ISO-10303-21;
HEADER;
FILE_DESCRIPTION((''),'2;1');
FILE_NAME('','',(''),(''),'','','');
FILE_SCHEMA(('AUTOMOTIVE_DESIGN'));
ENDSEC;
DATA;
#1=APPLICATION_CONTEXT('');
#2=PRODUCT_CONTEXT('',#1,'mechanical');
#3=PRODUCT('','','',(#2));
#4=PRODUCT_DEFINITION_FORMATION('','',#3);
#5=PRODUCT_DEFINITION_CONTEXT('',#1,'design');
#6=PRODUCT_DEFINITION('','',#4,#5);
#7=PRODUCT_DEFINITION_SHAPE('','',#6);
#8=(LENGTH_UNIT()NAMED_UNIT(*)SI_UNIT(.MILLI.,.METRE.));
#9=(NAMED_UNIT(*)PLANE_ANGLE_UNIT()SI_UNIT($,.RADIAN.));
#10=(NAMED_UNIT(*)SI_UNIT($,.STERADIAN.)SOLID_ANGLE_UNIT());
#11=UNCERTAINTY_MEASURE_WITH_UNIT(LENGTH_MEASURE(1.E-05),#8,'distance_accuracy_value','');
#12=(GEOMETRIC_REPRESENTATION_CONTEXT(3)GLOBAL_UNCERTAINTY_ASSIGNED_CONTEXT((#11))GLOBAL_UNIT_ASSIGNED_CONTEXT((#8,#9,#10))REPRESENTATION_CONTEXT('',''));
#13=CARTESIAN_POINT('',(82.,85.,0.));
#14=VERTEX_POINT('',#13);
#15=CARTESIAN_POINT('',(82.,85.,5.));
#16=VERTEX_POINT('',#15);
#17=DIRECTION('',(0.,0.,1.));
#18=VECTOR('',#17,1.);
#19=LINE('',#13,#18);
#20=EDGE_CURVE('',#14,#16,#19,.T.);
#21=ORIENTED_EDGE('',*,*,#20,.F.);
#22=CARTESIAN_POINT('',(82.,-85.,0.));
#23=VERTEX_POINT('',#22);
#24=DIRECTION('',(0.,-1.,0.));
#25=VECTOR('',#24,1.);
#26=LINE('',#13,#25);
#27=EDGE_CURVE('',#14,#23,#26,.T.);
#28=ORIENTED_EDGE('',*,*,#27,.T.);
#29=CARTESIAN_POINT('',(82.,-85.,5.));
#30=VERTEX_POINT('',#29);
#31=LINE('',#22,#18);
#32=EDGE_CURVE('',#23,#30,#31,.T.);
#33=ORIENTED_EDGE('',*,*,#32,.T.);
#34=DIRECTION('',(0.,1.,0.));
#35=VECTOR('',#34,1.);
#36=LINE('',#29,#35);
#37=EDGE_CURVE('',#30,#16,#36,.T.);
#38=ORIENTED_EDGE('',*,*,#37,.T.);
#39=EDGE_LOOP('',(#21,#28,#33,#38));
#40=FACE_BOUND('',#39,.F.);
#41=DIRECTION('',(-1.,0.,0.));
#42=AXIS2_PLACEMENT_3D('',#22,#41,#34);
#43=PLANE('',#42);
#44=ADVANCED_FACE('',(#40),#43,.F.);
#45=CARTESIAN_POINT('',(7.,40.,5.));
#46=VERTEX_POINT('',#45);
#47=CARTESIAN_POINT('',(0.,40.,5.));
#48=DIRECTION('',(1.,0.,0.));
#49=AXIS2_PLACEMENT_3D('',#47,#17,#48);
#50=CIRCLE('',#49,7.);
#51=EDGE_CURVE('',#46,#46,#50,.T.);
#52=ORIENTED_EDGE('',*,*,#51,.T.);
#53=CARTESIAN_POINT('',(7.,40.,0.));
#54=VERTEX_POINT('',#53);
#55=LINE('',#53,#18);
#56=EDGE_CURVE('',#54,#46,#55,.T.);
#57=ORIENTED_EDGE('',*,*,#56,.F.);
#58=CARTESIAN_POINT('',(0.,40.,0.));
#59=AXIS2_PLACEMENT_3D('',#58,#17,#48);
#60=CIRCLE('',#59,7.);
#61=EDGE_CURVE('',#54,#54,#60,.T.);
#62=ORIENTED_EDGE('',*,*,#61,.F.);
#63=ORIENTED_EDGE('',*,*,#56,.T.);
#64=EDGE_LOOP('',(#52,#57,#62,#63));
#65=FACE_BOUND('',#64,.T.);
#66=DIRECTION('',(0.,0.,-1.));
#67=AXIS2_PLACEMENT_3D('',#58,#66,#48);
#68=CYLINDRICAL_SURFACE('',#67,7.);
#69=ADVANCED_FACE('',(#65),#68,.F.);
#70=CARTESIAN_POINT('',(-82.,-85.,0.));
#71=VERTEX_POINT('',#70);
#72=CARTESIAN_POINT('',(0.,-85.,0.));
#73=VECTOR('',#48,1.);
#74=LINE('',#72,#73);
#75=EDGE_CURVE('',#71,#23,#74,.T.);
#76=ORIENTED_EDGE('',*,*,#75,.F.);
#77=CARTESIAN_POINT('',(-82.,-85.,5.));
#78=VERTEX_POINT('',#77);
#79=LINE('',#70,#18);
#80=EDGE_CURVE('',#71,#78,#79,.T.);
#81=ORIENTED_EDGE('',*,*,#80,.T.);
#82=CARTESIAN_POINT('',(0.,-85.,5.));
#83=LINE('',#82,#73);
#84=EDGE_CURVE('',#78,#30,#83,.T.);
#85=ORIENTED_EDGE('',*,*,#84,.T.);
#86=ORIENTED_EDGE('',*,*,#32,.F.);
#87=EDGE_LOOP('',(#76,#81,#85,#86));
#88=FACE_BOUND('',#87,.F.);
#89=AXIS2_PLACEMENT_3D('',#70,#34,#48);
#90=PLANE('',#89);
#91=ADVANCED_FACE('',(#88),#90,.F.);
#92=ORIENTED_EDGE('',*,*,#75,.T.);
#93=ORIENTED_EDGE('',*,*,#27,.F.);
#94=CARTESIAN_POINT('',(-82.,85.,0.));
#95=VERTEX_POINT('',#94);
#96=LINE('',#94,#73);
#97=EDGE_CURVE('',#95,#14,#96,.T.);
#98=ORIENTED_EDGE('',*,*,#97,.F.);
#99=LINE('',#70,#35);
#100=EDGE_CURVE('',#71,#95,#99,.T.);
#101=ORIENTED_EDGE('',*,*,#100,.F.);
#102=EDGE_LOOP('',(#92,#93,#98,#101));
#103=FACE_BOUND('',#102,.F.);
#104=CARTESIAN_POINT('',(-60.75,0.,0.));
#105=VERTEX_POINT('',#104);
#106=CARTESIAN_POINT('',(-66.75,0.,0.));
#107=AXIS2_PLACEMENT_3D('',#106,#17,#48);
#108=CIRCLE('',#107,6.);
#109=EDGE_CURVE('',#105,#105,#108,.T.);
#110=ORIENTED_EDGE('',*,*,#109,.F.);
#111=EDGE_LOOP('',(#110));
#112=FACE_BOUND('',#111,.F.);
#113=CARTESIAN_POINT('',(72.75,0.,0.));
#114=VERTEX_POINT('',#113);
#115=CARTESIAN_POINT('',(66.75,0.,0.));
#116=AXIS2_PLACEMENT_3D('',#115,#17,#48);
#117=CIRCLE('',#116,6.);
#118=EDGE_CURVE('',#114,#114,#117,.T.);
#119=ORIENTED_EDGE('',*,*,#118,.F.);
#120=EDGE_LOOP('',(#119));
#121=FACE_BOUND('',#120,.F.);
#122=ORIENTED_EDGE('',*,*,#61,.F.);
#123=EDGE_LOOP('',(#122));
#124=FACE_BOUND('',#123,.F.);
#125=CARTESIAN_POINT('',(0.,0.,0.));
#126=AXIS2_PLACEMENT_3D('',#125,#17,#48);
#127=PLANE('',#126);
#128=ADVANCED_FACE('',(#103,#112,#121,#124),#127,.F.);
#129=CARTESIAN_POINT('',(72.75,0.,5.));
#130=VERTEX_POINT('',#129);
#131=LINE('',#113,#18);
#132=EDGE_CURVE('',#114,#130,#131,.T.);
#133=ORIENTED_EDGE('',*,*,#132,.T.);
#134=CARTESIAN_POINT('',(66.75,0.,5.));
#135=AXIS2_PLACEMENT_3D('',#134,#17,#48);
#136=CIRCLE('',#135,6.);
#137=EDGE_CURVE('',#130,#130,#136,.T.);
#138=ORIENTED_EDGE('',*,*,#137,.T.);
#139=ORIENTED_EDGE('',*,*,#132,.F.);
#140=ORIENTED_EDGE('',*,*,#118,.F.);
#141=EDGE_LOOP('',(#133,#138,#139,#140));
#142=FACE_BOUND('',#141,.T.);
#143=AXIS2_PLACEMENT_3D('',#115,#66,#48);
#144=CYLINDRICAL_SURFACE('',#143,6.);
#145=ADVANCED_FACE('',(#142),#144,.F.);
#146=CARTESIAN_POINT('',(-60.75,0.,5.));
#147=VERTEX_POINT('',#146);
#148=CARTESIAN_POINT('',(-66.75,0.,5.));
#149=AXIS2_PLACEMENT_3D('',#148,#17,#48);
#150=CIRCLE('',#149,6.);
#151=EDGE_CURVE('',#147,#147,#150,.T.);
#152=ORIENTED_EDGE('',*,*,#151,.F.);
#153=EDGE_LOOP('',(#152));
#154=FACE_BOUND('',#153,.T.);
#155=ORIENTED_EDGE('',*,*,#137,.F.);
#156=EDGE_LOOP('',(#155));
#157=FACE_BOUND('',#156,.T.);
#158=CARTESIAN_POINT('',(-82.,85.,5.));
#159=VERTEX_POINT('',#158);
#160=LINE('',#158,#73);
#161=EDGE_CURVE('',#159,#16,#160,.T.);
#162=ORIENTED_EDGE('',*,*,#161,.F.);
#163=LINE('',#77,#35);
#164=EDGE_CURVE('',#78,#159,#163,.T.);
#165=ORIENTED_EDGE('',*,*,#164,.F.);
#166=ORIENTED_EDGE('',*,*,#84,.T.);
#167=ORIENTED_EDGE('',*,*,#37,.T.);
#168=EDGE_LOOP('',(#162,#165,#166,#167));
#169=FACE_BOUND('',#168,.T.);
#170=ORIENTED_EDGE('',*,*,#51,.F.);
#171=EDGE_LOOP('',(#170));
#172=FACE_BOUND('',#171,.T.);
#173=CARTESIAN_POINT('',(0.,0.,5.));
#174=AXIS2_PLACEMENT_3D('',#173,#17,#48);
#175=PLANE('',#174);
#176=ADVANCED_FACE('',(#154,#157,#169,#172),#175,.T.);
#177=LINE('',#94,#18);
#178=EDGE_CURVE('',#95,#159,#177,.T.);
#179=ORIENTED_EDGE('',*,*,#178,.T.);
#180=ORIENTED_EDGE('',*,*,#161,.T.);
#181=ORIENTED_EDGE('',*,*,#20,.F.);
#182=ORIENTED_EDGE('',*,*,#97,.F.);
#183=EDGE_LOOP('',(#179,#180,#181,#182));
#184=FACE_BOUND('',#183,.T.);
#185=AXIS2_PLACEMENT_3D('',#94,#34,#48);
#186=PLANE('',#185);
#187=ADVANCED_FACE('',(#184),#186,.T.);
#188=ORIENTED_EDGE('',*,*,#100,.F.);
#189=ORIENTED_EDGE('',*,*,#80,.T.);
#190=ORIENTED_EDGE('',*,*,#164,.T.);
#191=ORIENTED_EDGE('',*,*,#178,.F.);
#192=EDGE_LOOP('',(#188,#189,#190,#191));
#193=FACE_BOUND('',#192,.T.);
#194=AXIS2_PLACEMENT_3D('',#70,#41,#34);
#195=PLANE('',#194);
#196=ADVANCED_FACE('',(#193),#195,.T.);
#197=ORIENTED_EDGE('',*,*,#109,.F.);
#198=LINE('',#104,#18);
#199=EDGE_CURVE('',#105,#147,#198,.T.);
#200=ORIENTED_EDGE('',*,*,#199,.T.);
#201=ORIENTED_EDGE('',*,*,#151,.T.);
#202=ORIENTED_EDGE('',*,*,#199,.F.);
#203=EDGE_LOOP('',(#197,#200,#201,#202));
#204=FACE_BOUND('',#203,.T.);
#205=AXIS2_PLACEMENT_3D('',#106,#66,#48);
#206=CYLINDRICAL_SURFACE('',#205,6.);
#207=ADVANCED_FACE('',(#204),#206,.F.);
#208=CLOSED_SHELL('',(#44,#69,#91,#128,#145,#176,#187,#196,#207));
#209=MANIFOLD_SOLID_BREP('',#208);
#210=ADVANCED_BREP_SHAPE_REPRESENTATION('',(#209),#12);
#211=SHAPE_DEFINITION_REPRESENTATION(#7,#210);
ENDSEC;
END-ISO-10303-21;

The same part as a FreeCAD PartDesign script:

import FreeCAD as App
import Part
import Sketcher
from FreeCAD import Vector
Q = App.Units.Quantity


def add_polygon(sketch, points):
    """Adds a closed chain of lines whose ends are joined by coincident constraints."""
    first, n = sketch.GeometryCount, len(points)
    for a, b in zip(points, points[1:] + points[:1]):
        sketch.addGeometry(Part.LineSegment(App.Vector(*a, 0), App.Vector(*b, 0)), False)
    for i in range(n):
        sketch.addConstraint(Sketcher.Constraint("Coincident", first + i, 2, first + (i + 1) % n, 1))

doc = App.newDocument("Part")
params = doc.addObject("Spreadsheet::Sheet", "Params")
for row, (alias, value) in enumerate([
    ("sketch1_diameter", "12 mm"),
    ("sketch1_diameter2", "14 mm"),
    ("sketch1_width", "164 mm"),
    ("sketch1_height", "170 mm"),
    ("pad1_length", "5 mm"),
    ("sketch2_width", "20 mm"),
    ("sketch2_height", "5 mm"),
    ("pad2_length", "0.01 mm"),
], start=1):
    params.set(f"A{row}", alias)
    params.set(f"B{row}", "=" + value)
    params.setAlias(f"B{row}", alias)

body = doc.addObject("PartDesign::Body", "Body")

# Sketch on XY plane
sketch1 = body.newObject("Sketcher::SketchObject", "Sketch")
sketch1.AttachmentSupport = (doc.getObject("XY_Plane"), [""])
sketch1.MapMode = "FlatFace"
add_polygon(sketch1, [(-82, 85), (-82, -85), (82, -85), (82, 85)])  # lines 0-3
sketch1.addGeometry(Part.Circle(Vector(-67, 0, 0), Vector(0, 0, 1), 6), False)  # 4
sketch1.addGeometry(Part.Circle(Vector(67, 0, 0), Vector(0, 0, 1), 6), False)  # 5
sketch1.addGeometry(Part.Circle(Vector(0, 40, 0), Vector(0, 0, 1), 7), False)  # 6
sketch1.addConstraint([
    Sketcher.Constraint("Vertical", 0),
    Sketcher.Constraint("Horizontal", 1),
    Sketcher.Constraint("Vertical", 2),
    Sketcher.Constraint("Horizontal", 3),
    Sketcher.Constraint("Equal", 4, 5),
    Sketcher.Constraint("Symmetric", 4, 3, 5, 3, -1, 1),
    Sketcher.Constraint("Symmetric", 0, 2, 2, 2, -1, 1),
    Sketcher.Constraint("PointOnObject", 4, 3, -1),
    Sketcher.Constraint("PointOnObject", 6, 3, -2),
    Sketcher.Constraint("Diameter", 4, Q("12 mm")),
    Sketcher.Constraint("Diameter", 6, Q("14 mm")),
    Sketcher.Constraint("DistanceX", 1, 1, 1, 2, Q("164 mm")),
    Sketcher.Constraint("DistanceY", 0, 2, 0, 1, Q("170 mm")),
    Sketcher.Constraint("DistanceY", -1, 1, 6, 3, Q("40 mm")),
    Sketcher.Constraint("DistanceX", 4, 3, 5, 3, Q("133.5 mm")),
])
sketch1.setExpression("Constraints[13]", "Params.sketch1_diameter")
sketch1.setExpression("Constraints[14]", "Params.sketch1_diameter2")
sketch1.setExpression("Constraints[15]", "Params.sketch1_width")
sketch1.setExpression("Constraints[16]", "Params.sketch1_height")
pad1 = body.newObject("PartDesign::Pad", "Pad")
pad1.Profile = sketch1
pad1.setExpression("Length", "Params.pad1_length")

# Sketch on XZ plane
sketch2 = body.newObject("Sketcher::SketchObject", "Sketch001")
sketch2.AttachmentSupport = (doc.getObject("XZ_Plane"), [""])
sketch2.MapMode = "FlatFace"
sketch2.AttachmentOffset = App.Placement(Vector(0, 0, -85), App.Rotation())
add_polygon(sketch2, [(-62, 5), (-62, 0), (-82, 0), (-82, 5)])  # lines 0-3
add_polygon(sketch2, [(82, 5), (82, 0), (62, 0), (62, 5)])  # lines 4-7
sketch2.addConstraint([
    Sketcher.Constraint("Vertical", 0),
    Sketcher.Constraint("Horizontal", 1),
    Sketcher.Constraint("Vertical", 2),
    Sketcher.Constraint("Horizontal", 3),
    Sketcher.Constraint("Vertical", 4),
    Sketcher.Constraint("Horizontal", 5),
    Sketcher.Constraint("Vertical", 6),
    Sketcher.Constraint("Horizontal", 7),
    Sketcher.Constraint("Symmetric", 1, 2, 4, 2, -1, 1),
    Sketcher.Constraint("Symmetric", 0, 2, 5, 2, -2),
    Sketcher.Constraint("Horizontal", 3, 2, 6, 2),
    Sketcher.Constraint("DistanceX", 1, 2, 1, 1, Q("20 mm")),
    Sketcher.Constraint("DistanceY", 0, 2, 0, 1, Q("5 mm")),
    Sketcher.Constraint("DistanceX", 0, 2, -1, 1, Q("62 mm")),
])
sketch2.setExpression("Constraints[19]", "Params.sketch2_width")
sketch2.setExpression("Constraints[20]", "Params.sketch2_height")
pad2 = body.newObject("PartDesign::Pad", "Pad001")
pad2.Profile = sketch2
pad2.setExpression("Length", "Params.pad2_length")

doc.recompute()
